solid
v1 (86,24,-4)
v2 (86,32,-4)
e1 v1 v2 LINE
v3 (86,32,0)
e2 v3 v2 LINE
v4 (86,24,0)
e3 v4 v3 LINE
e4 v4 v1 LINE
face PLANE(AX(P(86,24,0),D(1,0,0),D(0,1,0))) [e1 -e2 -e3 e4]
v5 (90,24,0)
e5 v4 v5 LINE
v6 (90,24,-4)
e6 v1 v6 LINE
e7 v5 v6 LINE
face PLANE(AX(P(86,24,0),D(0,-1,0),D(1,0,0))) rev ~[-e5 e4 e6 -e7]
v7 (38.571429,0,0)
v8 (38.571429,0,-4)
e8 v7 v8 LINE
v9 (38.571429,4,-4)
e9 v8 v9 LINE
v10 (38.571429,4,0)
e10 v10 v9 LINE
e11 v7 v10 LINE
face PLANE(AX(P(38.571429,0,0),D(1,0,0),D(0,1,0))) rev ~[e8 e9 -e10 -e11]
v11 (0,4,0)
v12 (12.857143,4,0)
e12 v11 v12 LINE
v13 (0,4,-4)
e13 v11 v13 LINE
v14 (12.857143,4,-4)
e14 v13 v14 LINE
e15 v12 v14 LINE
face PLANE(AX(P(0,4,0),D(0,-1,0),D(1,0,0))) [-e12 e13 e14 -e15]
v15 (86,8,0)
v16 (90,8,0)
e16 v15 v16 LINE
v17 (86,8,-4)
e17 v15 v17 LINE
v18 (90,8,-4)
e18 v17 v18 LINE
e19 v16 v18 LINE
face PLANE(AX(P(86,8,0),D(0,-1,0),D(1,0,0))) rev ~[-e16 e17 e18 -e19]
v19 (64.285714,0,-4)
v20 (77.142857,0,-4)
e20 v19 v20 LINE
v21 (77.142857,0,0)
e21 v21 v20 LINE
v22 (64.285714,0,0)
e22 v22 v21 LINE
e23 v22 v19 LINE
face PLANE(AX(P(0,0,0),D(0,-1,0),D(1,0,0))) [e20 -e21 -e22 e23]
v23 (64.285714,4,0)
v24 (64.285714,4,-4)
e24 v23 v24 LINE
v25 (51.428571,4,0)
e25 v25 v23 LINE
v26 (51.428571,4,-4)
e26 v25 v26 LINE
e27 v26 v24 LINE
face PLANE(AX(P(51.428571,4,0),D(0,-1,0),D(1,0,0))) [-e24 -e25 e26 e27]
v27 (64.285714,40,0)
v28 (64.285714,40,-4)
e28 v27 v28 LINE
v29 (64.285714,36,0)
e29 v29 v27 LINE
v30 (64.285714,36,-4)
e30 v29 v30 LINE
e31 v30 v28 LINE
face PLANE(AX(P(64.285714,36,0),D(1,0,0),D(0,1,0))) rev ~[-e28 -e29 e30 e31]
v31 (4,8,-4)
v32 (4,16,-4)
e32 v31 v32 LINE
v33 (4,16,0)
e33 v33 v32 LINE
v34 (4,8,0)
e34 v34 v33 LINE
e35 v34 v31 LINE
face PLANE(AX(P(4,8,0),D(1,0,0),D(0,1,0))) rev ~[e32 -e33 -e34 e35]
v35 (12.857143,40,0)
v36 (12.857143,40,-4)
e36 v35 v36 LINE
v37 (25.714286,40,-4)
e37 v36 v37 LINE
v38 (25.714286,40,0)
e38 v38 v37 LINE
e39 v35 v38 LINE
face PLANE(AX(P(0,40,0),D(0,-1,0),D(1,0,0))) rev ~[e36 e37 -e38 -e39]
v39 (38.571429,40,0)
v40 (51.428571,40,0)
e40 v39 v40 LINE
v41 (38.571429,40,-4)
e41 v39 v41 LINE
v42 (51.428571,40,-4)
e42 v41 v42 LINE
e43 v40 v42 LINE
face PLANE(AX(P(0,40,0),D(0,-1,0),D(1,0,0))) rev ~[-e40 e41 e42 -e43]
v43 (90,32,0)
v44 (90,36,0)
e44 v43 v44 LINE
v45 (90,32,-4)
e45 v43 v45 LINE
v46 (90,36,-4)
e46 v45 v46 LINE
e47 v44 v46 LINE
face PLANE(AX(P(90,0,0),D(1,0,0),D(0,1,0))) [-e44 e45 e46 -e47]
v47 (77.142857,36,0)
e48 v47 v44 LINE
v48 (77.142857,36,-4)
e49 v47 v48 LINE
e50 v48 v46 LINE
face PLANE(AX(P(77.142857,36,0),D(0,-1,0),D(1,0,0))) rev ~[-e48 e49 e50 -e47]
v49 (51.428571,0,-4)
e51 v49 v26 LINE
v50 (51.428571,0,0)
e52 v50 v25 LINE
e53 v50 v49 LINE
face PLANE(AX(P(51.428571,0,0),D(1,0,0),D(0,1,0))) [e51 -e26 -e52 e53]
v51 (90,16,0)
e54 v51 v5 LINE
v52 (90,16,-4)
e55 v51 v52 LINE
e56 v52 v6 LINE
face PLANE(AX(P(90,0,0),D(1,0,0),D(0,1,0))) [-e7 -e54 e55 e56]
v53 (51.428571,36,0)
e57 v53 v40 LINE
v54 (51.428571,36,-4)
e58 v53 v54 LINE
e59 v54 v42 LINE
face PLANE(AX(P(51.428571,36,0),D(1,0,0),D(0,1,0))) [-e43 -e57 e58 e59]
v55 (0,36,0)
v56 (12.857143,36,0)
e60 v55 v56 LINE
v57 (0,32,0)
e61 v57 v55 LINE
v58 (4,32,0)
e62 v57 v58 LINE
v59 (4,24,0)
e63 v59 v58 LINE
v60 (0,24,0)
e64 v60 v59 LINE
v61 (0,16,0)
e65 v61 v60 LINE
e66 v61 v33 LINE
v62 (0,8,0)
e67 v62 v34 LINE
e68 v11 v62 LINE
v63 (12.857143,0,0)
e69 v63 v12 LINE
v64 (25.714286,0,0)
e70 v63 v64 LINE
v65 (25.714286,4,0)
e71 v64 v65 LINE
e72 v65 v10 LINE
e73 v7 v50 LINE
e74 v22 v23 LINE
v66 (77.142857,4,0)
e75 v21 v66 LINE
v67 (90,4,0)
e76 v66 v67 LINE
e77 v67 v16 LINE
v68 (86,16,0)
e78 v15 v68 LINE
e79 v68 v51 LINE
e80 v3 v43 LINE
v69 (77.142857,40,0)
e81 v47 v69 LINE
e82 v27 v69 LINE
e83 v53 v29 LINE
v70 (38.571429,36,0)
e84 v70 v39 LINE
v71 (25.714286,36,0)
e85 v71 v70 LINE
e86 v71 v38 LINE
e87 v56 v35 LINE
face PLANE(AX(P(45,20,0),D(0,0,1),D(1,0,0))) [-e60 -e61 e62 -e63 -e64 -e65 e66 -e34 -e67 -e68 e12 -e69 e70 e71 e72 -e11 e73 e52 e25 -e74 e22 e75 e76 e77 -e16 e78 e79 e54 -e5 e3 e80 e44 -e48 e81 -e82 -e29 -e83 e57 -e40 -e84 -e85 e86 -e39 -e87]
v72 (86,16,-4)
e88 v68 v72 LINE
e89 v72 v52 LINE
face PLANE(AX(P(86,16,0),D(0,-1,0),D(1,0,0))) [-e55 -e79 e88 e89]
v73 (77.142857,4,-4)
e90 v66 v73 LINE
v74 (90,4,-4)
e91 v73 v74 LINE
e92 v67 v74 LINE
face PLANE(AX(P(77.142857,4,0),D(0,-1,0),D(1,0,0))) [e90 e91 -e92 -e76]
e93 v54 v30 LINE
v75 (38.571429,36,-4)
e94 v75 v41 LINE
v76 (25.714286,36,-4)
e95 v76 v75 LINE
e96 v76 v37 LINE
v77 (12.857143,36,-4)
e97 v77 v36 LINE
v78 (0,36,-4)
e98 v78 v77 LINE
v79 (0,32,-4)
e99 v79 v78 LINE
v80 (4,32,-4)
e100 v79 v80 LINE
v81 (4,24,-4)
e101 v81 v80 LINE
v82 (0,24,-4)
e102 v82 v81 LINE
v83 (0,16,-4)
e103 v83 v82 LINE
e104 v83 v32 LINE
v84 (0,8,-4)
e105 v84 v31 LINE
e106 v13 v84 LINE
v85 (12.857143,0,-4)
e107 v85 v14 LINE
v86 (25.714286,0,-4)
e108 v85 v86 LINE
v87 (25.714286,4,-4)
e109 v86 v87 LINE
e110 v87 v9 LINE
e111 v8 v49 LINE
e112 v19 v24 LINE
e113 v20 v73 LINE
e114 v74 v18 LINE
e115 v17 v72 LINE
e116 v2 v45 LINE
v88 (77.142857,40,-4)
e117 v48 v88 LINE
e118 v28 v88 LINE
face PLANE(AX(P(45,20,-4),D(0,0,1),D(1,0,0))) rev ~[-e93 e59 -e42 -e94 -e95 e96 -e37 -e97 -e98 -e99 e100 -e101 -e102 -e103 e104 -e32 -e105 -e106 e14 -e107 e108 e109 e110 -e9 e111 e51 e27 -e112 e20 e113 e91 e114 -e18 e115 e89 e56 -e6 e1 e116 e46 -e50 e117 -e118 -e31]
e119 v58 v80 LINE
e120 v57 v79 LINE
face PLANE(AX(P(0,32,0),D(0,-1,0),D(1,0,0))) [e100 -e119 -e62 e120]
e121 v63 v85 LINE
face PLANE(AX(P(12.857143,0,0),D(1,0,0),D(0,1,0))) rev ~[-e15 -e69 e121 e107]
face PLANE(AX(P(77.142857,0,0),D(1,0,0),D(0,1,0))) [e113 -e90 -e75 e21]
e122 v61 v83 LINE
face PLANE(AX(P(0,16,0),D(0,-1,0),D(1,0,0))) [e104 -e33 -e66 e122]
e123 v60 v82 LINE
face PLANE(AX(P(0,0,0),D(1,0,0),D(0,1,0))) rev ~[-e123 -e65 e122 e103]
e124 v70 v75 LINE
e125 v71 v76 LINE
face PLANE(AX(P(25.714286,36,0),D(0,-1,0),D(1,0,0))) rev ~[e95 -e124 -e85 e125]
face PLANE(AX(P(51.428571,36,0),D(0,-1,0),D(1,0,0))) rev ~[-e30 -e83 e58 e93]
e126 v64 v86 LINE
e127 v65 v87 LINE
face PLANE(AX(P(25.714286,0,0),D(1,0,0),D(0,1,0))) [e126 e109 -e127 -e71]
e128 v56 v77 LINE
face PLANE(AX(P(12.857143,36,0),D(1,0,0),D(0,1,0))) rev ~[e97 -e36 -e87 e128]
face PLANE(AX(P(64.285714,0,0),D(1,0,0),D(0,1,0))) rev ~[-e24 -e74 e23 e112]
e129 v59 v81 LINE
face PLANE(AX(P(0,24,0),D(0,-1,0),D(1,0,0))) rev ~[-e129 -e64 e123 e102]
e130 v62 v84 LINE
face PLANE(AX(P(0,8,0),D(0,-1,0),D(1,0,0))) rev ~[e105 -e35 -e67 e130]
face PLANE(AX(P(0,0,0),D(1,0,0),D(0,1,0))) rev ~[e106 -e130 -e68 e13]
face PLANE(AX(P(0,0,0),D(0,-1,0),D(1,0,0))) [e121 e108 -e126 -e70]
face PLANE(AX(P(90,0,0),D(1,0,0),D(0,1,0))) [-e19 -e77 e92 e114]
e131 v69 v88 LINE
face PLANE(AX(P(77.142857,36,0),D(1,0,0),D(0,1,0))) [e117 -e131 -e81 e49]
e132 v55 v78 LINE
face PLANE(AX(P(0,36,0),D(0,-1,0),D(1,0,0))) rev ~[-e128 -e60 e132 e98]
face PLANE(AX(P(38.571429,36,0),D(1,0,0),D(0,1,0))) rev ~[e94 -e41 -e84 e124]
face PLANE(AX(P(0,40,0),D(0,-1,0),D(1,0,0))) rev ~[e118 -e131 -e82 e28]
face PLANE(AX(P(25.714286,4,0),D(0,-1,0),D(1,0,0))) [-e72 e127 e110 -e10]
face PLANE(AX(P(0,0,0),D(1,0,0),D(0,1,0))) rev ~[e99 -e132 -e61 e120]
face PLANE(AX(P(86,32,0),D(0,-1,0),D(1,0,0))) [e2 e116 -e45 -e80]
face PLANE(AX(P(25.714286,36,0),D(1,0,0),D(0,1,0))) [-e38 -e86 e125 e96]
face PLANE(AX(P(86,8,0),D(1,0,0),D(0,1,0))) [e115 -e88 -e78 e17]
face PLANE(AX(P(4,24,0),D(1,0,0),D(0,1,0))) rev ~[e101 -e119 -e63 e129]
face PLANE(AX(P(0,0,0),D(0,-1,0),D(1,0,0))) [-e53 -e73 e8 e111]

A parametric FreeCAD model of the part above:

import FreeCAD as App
import Part
import Sketcher
Q = App.Units.Quantity


def add_polygon(sketch, points):
    """Adds a closed chain of lines whose ends are joined by coincident constraints."""
    first, n = sketch.GeometryCount, len(points)
    for a, b in zip(points, points[1:] + points[:1]):
        sketch.addGeometry(Part.LineSegment(App.Vector(*a, 0), App.Vector(*b, 0)), False)
    for i in range(n):
        sketch.addConstraint(Sketcher.Constraint("Coincident", first + i, 2, first + (i + 1) % n, 1))

doc = App.newDocument("Part")
body = doc.addObject("PartDesign::Body", "Body")

# Sketch on XY plane
sketch1 = body.newObject("Sketcher::SketchObject", "Sketch")
sketch1.AttachmentSupport = (doc.getObject("XY_Plane"), [""])
sketch1.MapMode = "FlatFace"
add_polygon(sketch1, [(0, 40), (0, 0), (90, 0), (90, 40)])  # lines 0-3
sketch1.addConstraint([
    Sketcher.Constraint("Vertical", 0),
    Sketcher.Constraint("Horizontal", 1),
    Sketcher.Constraint("Vertical", 2),
    Sketcher.Constraint("Horizontal", 3),
    Sketcher.Constraint("Coincident", 0, 2, -1, 1),
    Sketcher.Constraint("DistanceX", 1, 1, 1, 2, Q("90 mm")),
    Sketcher.Constraint("DistanceY", 0, 2, 0, 1, Q("40 mm")),
])
pad1 = body.newObject("PartDesign::Pad", "Pad")
pad1.Profile = sketch1
pad1.Length = 4
pad1.Reversed = True

# Sketch on XY plane
sketch2 = body.newObject("Sketcher::SketchObject", "Sketch001")
sketch2.AttachmentSupport = (doc.getObject("XY_Plane"), [""])
sketch2.MapMode = "FlatFace"
add_polygon(sketch2, [(0, 40), (0, 36), (12.9, 36), (12.9, 40)])  # lines 0-3
sketch2.addConstraint([
    Sketcher.Constraint("Vertical", 0),
    Sketcher.Constraint("Horizontal", 1),
    Sketcher.Constraint("Vertical", 2),
    Sketcher.Constraint("Horizontal", 3),
    Sketcher.Constraint("PointOnObject", 0, 2, -2),
    Sketcher.Constraint("DistanceY", 0, 2, 0, 1, Q("4 mm")),
    Sketcher.Constraint("DistanceY", -1, 1, 0, 2, Q("36 mm")),
    Sketcher.Constraint("DistanceX", 1, 1, 1, 2, Q("12.857143 mm")),
])
pocket1 = body.newObject("PartDesign::Pocket", "Pocket")
pocket1.Profile = sketch2
pocket1.Type = "ThroughAll"
doc.recompute()

linearpattern = body.newObject("PartDesign::LinearPattern", "LinearPattern")
linearpattern.Originals = [pocket1]
linearpattern.Direction = (doc.getObject("X_Axis"), [""])
linearpattern.Mode = "offset"
linearpattern.Offset = 25.714286
linearpattern.Occurrences = 4
body.Tip = linearpattern

# Sketch on XY plane
sketch3 = body.newObject("Sketcher::SketchObject", "Sketch002")
sketch3.AttachmentSupport = (doc.getObject("XY_Plane"), [""])
sketch3.MapMode = "FlatFace"
add_polygon(sketch3, [(0, 32), (0, 24), (4, 24), (4, 32)])  # lines 0-3
sketch3.addConstraint([
    Sketcher.Constraint("Vertical", 0),
    Sketcher.Constraint("Horizontal", 1),
    Sketcher.Constraint("Vertical", 2),
    Sketcher.Constraint("Horizontal", 3),
    Sketcher.Constraint("PointOnObject", 0, 2, -2),
    Sketcher.Constraint("DistanceX", 1, 1, 1, 2, Q("4 mm")),
    Sketcher.Constraint("DistanceY", 0, 2, 0, 1, Q("8 mm")),
    Sketcher.Constraint("DistanceY", -1, 1, 0, 2, Q("24 mm")),
])
pocket2 = body.newObject("PartDesign::Pocket", "Pocket001")
pocket2.Profile = sketch3
pocket2.Type = "ThroughAll"
doc.recompute()

linearpattern2 = body.newObject("PartDesign::LinearPattern", "LinearPattern001")
linearpattern2.Originals = [pocket2]
linearpattern2.Direction = (doc.getObject("Y_Axis"), [""])
linearpattern2.Mode = "offset"
linearpattern2.Offset = 16
linearpattern2.Occurrences = 2
linearpattern2.Reversed = True
body.Tip = linearpattern2

# Sketch on XY plane
sketch4 = body.newObject("Sketcher::SketchObject", "Sketch003")
sketch4.AttachmentSupport = (doc.getObject("XY_Plane"), [""])
sketch4.MapMode = "FlatFace"
add_polygon(sketch4, [(0, 4), (0, 0), (12.9, 0), (12.9, 4)])  # lines 0-3
sketch4.addConstraint([
    Sketcher.Constraint("Vertical", 0),
    Sketcher.Constraint("Horizontal", 1),
    Sketcher.Constraint("Vertical", 2),
    Sketcher.Constraint("Horizontal", 3),
    Sketcher.Constraint("Coincident", 0, 2, -1, 1),
    Sketcher.Constraint("DistanceY", 0, 2, 0, 1, Q("4 mm")),
    Sketcher.Constraint("DistanceX", 1, 1, 1, 2, Q("12.857143 mm")),
])
pocket3 = body.newObject("PartDesign::Pocket", "Pocket002")
pocket3.Profile = sketch4
pocket3.Type = "ThroughAll"
doc.recompute()

linearpattern3 = body.newObject("PartDesign::LinearPattern", "LinearPattern002")
linearpattern3.Originals = [pocket3]
linearpattern3.Direction = (doc.getObject("X_Axis"), [""])
linearpattern3.Mode = "offset"
linearpattern3.Offset = 25.714286
linearpattern3.Occurrences = 4
body.Tip = linearpattern3

# Sketch on XY plane
sketch5 = body.newObject("Sketcher::SketchObject", "Sketch004")
sketch5.AttachmentSupport = (doc.getObject("XY_Plane"), [""])
sketch5.MapMode = "FlatFace"
add_polygon(sketch5, [(86, 32), (86, 24), (90, 24), (90, 32)])  # lines 0-3
sketch5.addConstraint([
    Sketcher.Constraint("Vertical", 0),
    Sketcher.Constraint("Horizontal", 1),
    Sketcher.Constraint("Vertical", 2),
    Sketcher.Constraint("Horizontal", 3),
    Sketcher.Constraint("DistanceX", 1, 1, 1, 2, Q("4 mm")),
    Sketcher.Constraint("DistanceY", 0, 2, 0, 1, Q("8 mm")),
    Sketcher.Constraint("DistanceX", -1, 1, 0, 2, Q("86 mm")),
    Sketcher.Constraint("DistanceY", -1, 1, 0, 2, Q("24 mm")),
])
pocket4 = body.newObject("PartDesign::Pocket", "Pocket003")
pocket4.Profile = sketch5
pocket4.Type = "ThroughAll"
doc.recompute()

linearpattern4 = body.newObject("PartDesign::LinearPattern", "LinearPattern003")
linearpattern4.Originals = [pocket4]
linearpattern4.Direction = (doc.getObject("Y_Axis"), [""])
linearpattern4.Mode = "offset"
linearpattern4.Offset = 16
linearpattern4.Occurrences = 2
linearpattern4.Reversed = True
body.Tip = linearpattern4

doc.recompute()
